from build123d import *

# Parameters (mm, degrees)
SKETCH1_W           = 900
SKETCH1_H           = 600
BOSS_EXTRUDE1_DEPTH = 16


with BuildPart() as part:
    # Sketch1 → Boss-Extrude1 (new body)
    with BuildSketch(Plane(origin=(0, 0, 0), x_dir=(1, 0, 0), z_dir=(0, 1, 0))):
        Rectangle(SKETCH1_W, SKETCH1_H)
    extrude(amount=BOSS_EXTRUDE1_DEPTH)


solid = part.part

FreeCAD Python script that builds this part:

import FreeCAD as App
import Part
import Sketcher

V = App.Vector
Q = App.Units.Quantity

doc = App.newDocument("Part")
body = doc.addObject("PartDesign::Body", "Body")

sketch1 = body.newObject("Sketcher::SketchObject", "Sketch")
sketch1.AttachmentSupport = (doc.getObject("XZ_Plane"), [""])
sketch1.MapMode = "FlatFace"
sketch1.addGeometry([
    Part.LineSegment(V(-450, -300, 0), V(-450, 300, 0)),
    Part.LineSegment(V(-450, 300, 0), V(450, 300, 0)),
    Part.LineSegment(V(450, 300, 0), V(450, -300, 0)),
    Part.LineSegment(V(450, -300, 0), V(-450, -300, 0)),
], False)
sketch1.addConstraint([
    Sketcher.Constraint("Coincident", 0, 2, 1, 1),
    Sketcher.Constraint("Coincident", 1, 2, 2, 1),
    Sketcher.Constraint("Coincident", 2, 2, 3, 1),
    Sketcher.Constraint("Coincident", 3, 2, 0, 1),
    Sketcher.Constraint("Vertical", 0),
    Sketcher.Constraint("Horizontal", 1),
    Sketcher.Constraint("Vertical", 2),
    Sketcher.Constraint("Horizontal", 3),
    Sketcher.Constraint("Symmetric", 0, 2, 2, 2, -1, 1),
    Sketcher.Constraint("DistanceX", 1, 1, 1, 2, Q("900 mm")),
    Sketcher.Constraint("DistanceY", 0, 1, 0, 2, Q("600 mm")),
])
pad1 = body.newObject("PartDesign::Pad", "Pad")
pad1.Profile = sketch1
pad1.Length = 16
pad1.Reversed = True

doc.recompute()
